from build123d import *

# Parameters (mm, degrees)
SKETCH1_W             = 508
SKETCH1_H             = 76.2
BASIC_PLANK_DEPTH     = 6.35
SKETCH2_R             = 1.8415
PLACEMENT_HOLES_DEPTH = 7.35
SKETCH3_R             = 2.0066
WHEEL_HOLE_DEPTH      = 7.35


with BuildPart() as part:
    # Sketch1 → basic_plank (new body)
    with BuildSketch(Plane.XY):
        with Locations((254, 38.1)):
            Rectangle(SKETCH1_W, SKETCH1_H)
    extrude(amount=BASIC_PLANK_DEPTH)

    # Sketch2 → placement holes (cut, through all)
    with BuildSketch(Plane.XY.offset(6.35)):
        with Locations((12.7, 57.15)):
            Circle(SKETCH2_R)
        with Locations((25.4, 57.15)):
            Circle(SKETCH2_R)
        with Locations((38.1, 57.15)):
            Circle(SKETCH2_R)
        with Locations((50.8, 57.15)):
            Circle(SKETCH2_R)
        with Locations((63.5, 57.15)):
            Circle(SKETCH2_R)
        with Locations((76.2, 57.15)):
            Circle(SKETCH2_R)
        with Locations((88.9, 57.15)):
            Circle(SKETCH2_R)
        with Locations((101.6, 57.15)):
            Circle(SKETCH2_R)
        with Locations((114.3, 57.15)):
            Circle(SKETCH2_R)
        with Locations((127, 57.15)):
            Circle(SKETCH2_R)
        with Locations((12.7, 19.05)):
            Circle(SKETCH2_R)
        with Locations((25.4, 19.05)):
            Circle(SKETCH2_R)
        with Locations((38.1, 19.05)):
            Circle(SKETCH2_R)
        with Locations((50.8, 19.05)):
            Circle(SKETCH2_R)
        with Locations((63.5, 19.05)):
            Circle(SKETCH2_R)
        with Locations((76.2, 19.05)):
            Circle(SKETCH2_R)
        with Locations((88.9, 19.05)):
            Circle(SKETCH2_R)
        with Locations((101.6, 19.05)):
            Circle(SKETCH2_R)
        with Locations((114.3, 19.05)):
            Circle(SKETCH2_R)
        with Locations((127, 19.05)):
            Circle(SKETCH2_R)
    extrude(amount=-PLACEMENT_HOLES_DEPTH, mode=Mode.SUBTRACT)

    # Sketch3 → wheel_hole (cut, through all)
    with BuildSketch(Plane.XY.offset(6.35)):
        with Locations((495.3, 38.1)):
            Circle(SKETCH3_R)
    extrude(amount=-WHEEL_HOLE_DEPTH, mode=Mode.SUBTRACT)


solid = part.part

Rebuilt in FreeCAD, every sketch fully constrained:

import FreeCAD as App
import Part
import Sketcher

V = App.Vector
Q = App.Units.Quantity


def add_polygon(sketch, points):
    """Adds a closed chain of lines whose ends are joined by coincident constraints."""
    first, n = sketch.GeometryCount, len(points)
    for a, b in zip(points, points[1:] + points[:1]):
        sketch.addGeometry(Part.LineSegment(App.Vector(*a, 0), App.Vector(*b, 0)), False)
    for i in range(n):
        sketch.addConstraint(Sketcher.Constraint("Coincident", first + i, 2, first + (i + 1) % n, 1))

doc = App.newDocument("Part")
body = doc.addObject("PartDesign::Body", "Body")

# Sketch on XY plane
sketch1 = doc.addObject("Sketcher::SketchObject", "Sketch")
body.addObject(sketch1)
sketch1.AttachmentSupport = (doc.XY_Plane, [""])
sketch1.MapMode = "FlatFace"
add_polygon(sketch1, [(0, 76), (0, 0), (508, 0), (508, 76)])  # lines 0-3
sketch1.addConstraint(Sketcher.Constraint("Vertical", 0))
sketch1.addConstraint(Sketcher.Constraint("Horizontal", 1))
sketch1.addConstraint(Sketcher.Constraint("Vertical", 2))
sketch1.addConstraint(Sketcher.Constraint("Horizontal", 3))
sketch1.addConstraint(Sketcher.Constraint("Coincident", 0, 2, -1, 1))
sketch1.addConstraint(Sketcher.Constraint("DistanceX", 1, 1, 1, 2, Q("20 in")))
sketch1.addConstraint(Sketcher.Constraint("DistanceY", 0, 2, 0, 1, Q("3 in")))
pad1 = doc.addObject("PartDesign::Pad", "Pad")
body.addObject(pad1)
pad1.Profile = sketch1
pad1.Length = Q("0.25 in")

# Sketch on XY plane
sketch2 = doc.addObject("Sketcher::SketchObject", "Sketch001")
body.addObject(sketch2)
sketch2.AttachmentSupport = (doc.XY_Plane, [""])
sketch2.MapMode = "FlatFace"
sketch2.AttachmentOffset = App.Placement(V(0, 0, 0.25 * 25.4), App.Rotation())
sketch2.addGeometry(Part.Circle(V(12.7, 57.1, 0), V(0, 0, 1), 1.8), False)
sketch2.addGeometry(Part.Circle(V(25.4, 57.1, 0), V(0, 0, 1), 1.8), False)
sketch2.addGeometry(Part.Circle(V(38.1, 57.1, 0), V(0, 0, 1), 1.8), False)
sketch2.addGeometry(Part.Circle(V(50.8, 57.1, 0), V(0, 0, 1), 1.8), False)
sketch2.addGeometry(Part.Circle(V(63.5, 57.1, 0), V(0, 0, 1), 1.8), False)
sketch2.addGeometry(Part.Circle(V(76.2, 57.1, 0), V(0, 0, 1), 1.8), False)
sketch2.addGeometry(Part.Circle(V(88.9, 57.1, 0), V(0, 0, 1), 1.8), False)
sketch2.addGeometry(Part.Circle(V(101.6, 57.1, 0), V(0, 0, 1), 1.8), False)
sketch2.addGeometry(Part.Circle(V(114.3, 57.1, 0), V(0, 0, 1), 1.8), False)
sketch2.addGeometry(Part.Circle(V(127, 57.1, 0), V(0, 0, 1), 1.8), False)
sketch2.addGeometry(Part.Circle(V(12.7, 19.1, 0), V(0, 0, 1), 1.8), False)
sketch2.addGeometry(Part.Circle(V(25.4, 19.1, 0), V(0, 0, 1), 1.8), False)
sketch2.addGeometry(Part.Circle(V(38.1, 19.1, 0), V(0, 0, 1), 1.8), False)
sketch2.addGeometry(Part.Circle(V(50.8, 19.1, 0), V(0, 0, 1), 1.8), False)
sketch2.addGeometry(Part.Circle(V(63.5, 19.1, 0), V(0, 0, 1), 1.8), False)
sketch2.addGeometry(Part.Circle(V(76.2, 19.1, 0), V(0, 0, 1), 1.8), False)
sketch2.addGeometry(Part.Circle(V(88.9, 19.1, 0), V(0, 0, 1), 1.8), False)
sketch2.addGeometry(Part.Circle(V(101.6, 19.1, 0), V(0, 0, 1), 1.8), False)
sketch2.addGeometry(Part.Circle(V(114.3, 19.1, 0), V(0, 0, 1), 1.8), False)
sketch2.addGeometry(Part.Circle(V(127, 19.1, 0), V(0, 0, 1), 1.8), False)
sketch2.addConstraint(Sketcher.Constraint("Equal", 0, 1))
sketch2.addConstraint(Sketcher.Constraint("Equal", 1, 2))
sketch2.addConstraint(Sketcher.Constraint("Equal", 2, 3))
sketch2.addConstraint(Sketcher.Constraint("Equal", 3, 4))
sketch2.addConstraint(Sketcher.Constraint("Equal", 4, 5))
sketch2.addConstraint(Sketcher.Constraint("Equal", 5, 6))
sketch2.addConstraint(Sketcher.Constraint("Equal", 6, 7))
sketch2.addConstraint(Sketcher.Constraint("Equal", 7, 8))
sketch2.addConstraint(Sketcher.Constraint("Equal", 8, 9))
sketch2.addConstraint(Sketcher.Constraint("Equal", 9, 10))
sketch2.addConstraint(Sketcher.Constraint("Equal", 10, 11))
sketch2.addConstraint(Sketcher.Constraint("Equal", 11, 12))
sketch2.addConstraint(Sketcher.Constraint("Equal", 12, 13))
sketch2.addConstraint(Sketcher.Constraint("Equal", 13, 14))
sketch2.addConstraint(Sketcher.Constraint("Equal", 14, 15))
sketch2.addConstraint(Sketcher.Constraint("Equal", 15, 16))
sketch2.addConstraint(Sketcher.Constraint("Equal", 16, 17))
sketch2.addConstraint(Sketcher.Constraint("Equal", 17, 18))
sketch2.addConstraint(Sketcher.Constraint("Equal", 18, 19))
sketch2.addConstraint(Sketcher.Constraint("Horizontal", 0, 3, 1, 3))
sketch2.addConstraint(Sketcher.Constraint("Horizontal", 1, 3, 2, 3))
sketch2.addConstraint(Sketcher.Constraint("Horizontal", 2, 3, 3, 3))
sketch2.addConstraint(Sketcher.Constraint("Horizontal", 3, 3, 4, 3))
sketch2.addConstraint(Sketcher.Constraint("Horizontal", 4, 3, 5, 3))
sketch2.addConstraint(Sketcher.Constraint("Horizontal", 5, 3, 6, 3))
sketch2.addConstraint(Sketcher.Constraint("Horizontal", 6, 3, 7, 3))
sketch2.addConstraint(Sketcher.Constraint("Horizontal", 7, 3, 8, 3))
sketch2.addConstraint(Sketcher.Constraint("Horizontal", 8, 3, 9, 3))
sketch2.addConstraint(Sketcher.Constraint("Horizontal", 10, 3, 11, 3))
sketch2.addConstraint(Sketcher.Constraint("Horizontal", 11, 3, 12, 3))
sketch2.addConstraint(Sketcher.Constraint("Horizontal", 12, 3, 13, 3))
sketch2.addConstraint(Sketcher.Constraint("Horizontal", 13, 3, 14, 3))
sketch2.addConstraint(Sketcher.Constraint("Horizontal", 14, 3, 15, 3))
sketch2.addConstraint(Sketcher.Constraint("Horizontal", 15, 3, 16, 3))
sketch2.addConstraint(Sketcher.Constraint("Horizontal", 16, 3, 17, 3))
sketch2.addConstraint(Sketcher.Constraint("Horizontal", 17, 3, 18, 3))
sketch2.addConstraint(Sketcher.Constraint("Horizontal", 18, 3, 19, 3))
sketch2.addConstraint(Sketcher.Constraint("Vertical", 0, 3, 10, 3))
sketch2.addConstraint(Sketcher.Constraint("Vertical", 1, 3, 11, 3))
sketch2.addConstraint(Sketcher.Constraint("Vertical", 2, 3, 12, 3))
sketch2.addConstraint(Sketcher.Constraint("Vertical", 3, 3, 13, 3))
sketch2.addConstraint(Sketcher.Constraint("Vertical", 4, 3, 14, 3))
sketch2.addConstraint(Sketcher.Constraint("Vertical", 5, 3, 15, 3))
sketch2.addConstraint(Sketcher.Constraint("Vertical", 6, 3, 16, 3))
sketch2.addConstraint(Sketcher.Constraint("Vertical", 7, 3, 17, 3))
sketch2.addConstraint(Sketcher.Constraint("Vertical", 8, 3, 18, 3))
sketch2.addConstraint(Sketcher.Constraint("Vertical", 9, 3, 19, 3))
sketch2.addConstraint(Sketcher.Constraint("Diameter", 0, Q("0.145 in")))
sketch2.addConstraint(Sketcher.Constraint("DistanceX", -1, 1, 1, 3, Q("1 in")))
sketch2.addConstraint(Sketcher.Constraint("DistanceX", -1, 1, 3, 3, Q("2 in")))
sketch2.addConstraint(Sketcher.Constraint("DistanceX", -1, 1, 5, 3, Q("3 in")))
sketch2.addConstraint(Sketcher.Constraint("DistanceX", -1, 1, 7, 3, Q("4 in")))
sketch2.addConstraint(Sketcher.Constraint("DistanceX", -1, 1, 9, 3, Q("5 in")))
sketch2.addConstraint(Sketcher.Constraint("DistanceX", 0, 3, 2, 3, Q("1 in")))
sketch2.addConstraint(Sketcher.Constraint("DistanceX", 2, 3, 4, 3, Q("1 in")))
sketch2.addConstraint(Sketcher.Constraint("DistanceX", 4, 3, 6, 3, Q("1 in")))
sketch2.addConstraint(Sketcher.Constraint("DistanceX", 6, 3, 8, 3, Q("1 in")))
sketch2.addConstraint(Sketcher.Constraint("DistanceX", -1, 1, 0, 3, Q("0.5 in")))
sketch2.addConstraint(Sketcher.Constraint("DistanceY", 10, 3, 0, 3, Q("1.5 in")))
sketch2.addConstraint(Sketcher.Constraint("DistanceY", -1, 1, 0, 3, Q("2.25 in")))
pocket1 = doc.addObject("PartDesign::Pocket", "Pocket")
body.addObject(pocket1)
pocket1.Profile = sketch2
pocket1.Type = "ThroughAll"

# Sketch on XY plane
sketch3 = doc.addObject("Sketcher::SketchObject", "Sketch002")
body.addObject(sketch3)
sketch3.AttachmentSupport = (doc.XY_Plane, [""])
sketch3.MapMode = "FlatFace"
sketch3.AttachmentOffset = App.Placement(V(0, 0, 0.25 * 25.4), App.Rotation())
sketch3.addGeometry(Part.Circle(V(495.3, 38.1, 0), V(0, 0, 1), 2), False)
sketch3.addConstraint(Sketcher.Constraint("Diameter", 0, Q("0.158 in")))
sketch3.addConstraint(Sketcher.Constraint("DistanceX", -1, 1, 0, 3, Q("19.5 in")))
sketch3.addConstraint(Sketcher.Constraint("DistanceY", -1, 1, 0, 3, Q("1.5 in")))
pocket2 = doc.addObject("PartDesign::Pocket", "Pocket001")
body.addObject(pocket2)
pocket2.Profile = sketch3
pocket2.Type = "ThroughAll"

doc.recompute()
